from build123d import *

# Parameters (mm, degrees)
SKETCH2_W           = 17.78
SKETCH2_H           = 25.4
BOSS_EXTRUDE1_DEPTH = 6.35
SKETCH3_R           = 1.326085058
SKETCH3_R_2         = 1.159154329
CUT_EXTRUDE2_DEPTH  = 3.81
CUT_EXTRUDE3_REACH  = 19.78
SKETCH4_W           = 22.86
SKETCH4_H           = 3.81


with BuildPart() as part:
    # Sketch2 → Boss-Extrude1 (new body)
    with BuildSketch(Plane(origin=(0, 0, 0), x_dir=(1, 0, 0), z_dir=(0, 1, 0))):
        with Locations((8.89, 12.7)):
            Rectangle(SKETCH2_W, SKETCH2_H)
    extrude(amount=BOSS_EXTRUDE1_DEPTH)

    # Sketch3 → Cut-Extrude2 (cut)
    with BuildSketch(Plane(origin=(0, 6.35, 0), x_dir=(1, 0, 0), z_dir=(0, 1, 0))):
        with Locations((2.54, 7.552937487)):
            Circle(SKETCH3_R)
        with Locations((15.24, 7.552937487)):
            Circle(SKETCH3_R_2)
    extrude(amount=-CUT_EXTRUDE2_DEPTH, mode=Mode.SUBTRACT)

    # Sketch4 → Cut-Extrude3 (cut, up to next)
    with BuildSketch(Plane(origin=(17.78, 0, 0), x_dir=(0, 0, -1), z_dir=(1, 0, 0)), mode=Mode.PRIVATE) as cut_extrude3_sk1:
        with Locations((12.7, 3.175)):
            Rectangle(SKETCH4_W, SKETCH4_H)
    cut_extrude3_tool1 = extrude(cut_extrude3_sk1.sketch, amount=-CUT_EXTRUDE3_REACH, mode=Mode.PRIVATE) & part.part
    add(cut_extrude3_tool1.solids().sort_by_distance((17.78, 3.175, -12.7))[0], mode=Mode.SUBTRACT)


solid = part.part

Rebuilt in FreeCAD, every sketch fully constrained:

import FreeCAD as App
import Part
import Sketcher
Q = App.Units.Quantity

doc = App.newDocument("Part")
params = doc.addObject("Spreadsheet::Sheet", "Params")
for row, (alias, value) in enumerate([
    ("sketch1_height", "1 in"),
    ("sketch1_width", "0.7 in"),
    ("pad1_length", "0.25 in"),
    ("pocket1_length", "0.15 in"),
    ("sketch3_height", "0.9 in"),
    ("sketch3_width", "0.15 in"),
], start=1):
    params.set(f"A{row}", alias)
    params.set(f"B{row}", "=" + value)
    params.setAlias(f"B{row}", alias)

body = doc.addObject("PartDesign::Body", "Body")

# Sketch on XZ plane
sketch1 = doc.addObject("Sketcher::SketchObject", "Sketch")
body.addObject(sketch1)
sketch1.AttachmentSupport = (doc.XZ_Plane, [""])
sketch1.MapMode = "FlatFace"
sketch1.addGeometry(Part.LineSegment(App.Vector(0, -25, 0), App.Vector(0, 0, 0)), False)
sketch1.addGeometry(Part.LineSegment(App.Vector(0, 0, 0), App.Vector(18, 0, 0)), False)
sketch1.addGeometry(Part.LineSegment(App.Vector(18, 0, 0), App.Vector(18, -25, 0)), False)
sketch1.addGeometry(Part.LineSegment(App.Vector(18, -25, 0), App.Vector(0, -25, 0)), False)
sketch1.addConstraint(Sketcher.Constraint("Coincident", 0, 2, 1, 1))
sketch1.addConstraint(Sketcher.Constraint("Coincident", 1, 2, 2, 1))
sketch1.addConstraint(Sketcher.Constraint("Coincident", 2, 2, 3, 1))
sketch1.addConstraint(Sketcher.Constraint("Coincident", 3, 2, 0, 1))
sketch1.addConstraint(Sketcher.Constraint("Vertical", 0))
sketch1.addConstraint(Sketcher.Constraint("Horizontal", 1))
sketch1.addConstraint(Sketcher.Constraint("Vertical", 2))
sketch1.addConstraint(Sketcher.Constraint("Horizontal", 3))
sketch1.addConstraint(Sketcher.Constraint("Coincident", 0, 2, -1, 1))
sketch1.addConstraint(Sketcher.Constraint("DistanceY", 0, 1, 0, 2, Q("1 in")))
sketch1.addConstraint(Sketcher.Constraint("DistanceX", 1, 1, 1, 2, Q("0.7 in")))
sketch1.setExpression("Constraints[9]", "Params.sketch1_height")
sketch1.setExpression("Constraints[10]", "Params.sketch1_width")
pad1 = doc.addObject("PartDesign::Pad", "Pad")
body.addObject(pad1)
pad1.Profile = sketch1
pad1.setExpression("Length", "Params.pad1_length")
pad1.Reversed = True

# Sketch on XZ plane
sketch2 = doc.addObject("Sketcher::SketchObject", "Sketch001")
body.addObject(sketch2)
sketch2.AttachmentSupport = (doc.XZ_Plane, [""])
sketch2.MapMode = "FlatFace"
sketch2.AttachmentOffset = App.Placement(App.Vector(0, 0, -0.25 * 25.4), App.Rotation())
sketch2.addGeometry(Part.Circle(App.Vector(2.5, -7.6, 0), App.Vector(0, 0, 1), 1.3), False)
sketch2.addGeometry(Part.Circle(App.Vector(15.2, -7.6, 0), App.Vector(0, 0, 1), 1.2), False)
sketch2.addConstraint(Sketcher.Constraint("Horizontal", 0, 3, 1, 3))
sketch2.addConstraint(Sketcher.Constraint("DistanceX", -1, 1, 0, 3, Q("0.1 in")))
sketch2.addConstraint(Sketcher.Constraint("DistanceX", -1, 1, 1, 3, Q("0.6 in")))
sketch2.addConstraint(Sketcher.Constraint("Diameter", 0, Q("2.65217 mm")))
sketch2.addConstraint(Sketcher.Constraint("Diameter", 1, Q("2.318309 mm")))
sketch2.addConstraint(Sketcher.Constraint("DistanceY", 0, 3, -1, 1, Q("7.552937 mm")))
pocket1 = doc.addObject("PartDesign::Pocket", "Pocket")
body.addObject(pocket1)
pocket1.Profile = sketch2
pocket1.setExpression("Length", "Params.pocket1_length")
pocket1.Reversed = True

# Sketch on YZ plane
sketch3 = doc.addObject("Sketcher::SketchObject", "Sketch002")
body.addObject(sketch3)
sketch3.AttachmentSupport = (doc.YZ_Plane, [""])
sketch3.MapMode = "FlatFace"
sketch3.AttachmentOffset = App.Placement(App.Vector(0, 0, 0.7 * 25.4), App.Rotation())
sketch3.addGeometry(Part.LineSegment(App.Vector(5.1, -1.3, 0), App.Vector(1.3, -1.3, 0)), False)
sketch3.addGeometry(Part.LineSegment(App.Vector(1.3, -1.3, 0), App.Vector(1.3, -24.1, 0)), False)
sketch3.addGeometry(Part.LineSegment(App.Vector(1.3, -24.1, 0), App.Vector(5.1, -24.1, 0)), False)
sketch3.addGeometry(Part.LineSegment(App.Vector(5.1, -24.1, 0), App.Vector(5.1, -1.3, 0)), False)
sketch3.addConstraint(Sketcher.Constraint("Coincident", 0, 2, 1, 1))
sketch3.addConstraint(Sketcher.Constraint("Coincident", 1, 2, 2, 1))
sketch3.addConstraint(Sketcher.Constraint("Coincident", 2, 2, 3, 1))
sketch3.addConstraint(Sketcher.Constraint("Coincident", 3, 2, 0, 1))
sketch3.addConstraint(Sketcher.Constraint("Horizontal", 0))
sketch3.addConstraint(Sketcher.Constraint("Vertical", 1))
sketch3.addConstraint(Sketcher.Constraint("Horizontal", 2))
sketch3.addConstraint(Sketcher.Constraint("Vertical", 3))
sketch3.addConstraint(Sketcher.Constraint("DistanceY", 1, 2, 1, 1, Q("0.9 in")))
sketch3.addConstraint(Sketcher.Constraint("DistanceX", 0, 2, 0, 1, Q("0.15 in")))
sketch3.addConstraint(Sketcher.Constraint("DistanceX", -1, 1, 2, 2, Q("0.2 in")))
sketch3.addConstraint(Sketcher.Constraint("DistanceY", 0, 2, -1, 1, Q("0.05 in")))
sketch3.setExpression("Constraints[8]", "Params.sketch3_height")
sketch3.setExpression("Constraints[9]", "Params.sketch3_width")
pocket2 = doc.addObject("PartDesign::Pocket", "Pocket001")
body.addObject(pocket2)
pocket2.Profile = sketch3
pocket2.Type = "UpToFirst"

doc.recompute()
